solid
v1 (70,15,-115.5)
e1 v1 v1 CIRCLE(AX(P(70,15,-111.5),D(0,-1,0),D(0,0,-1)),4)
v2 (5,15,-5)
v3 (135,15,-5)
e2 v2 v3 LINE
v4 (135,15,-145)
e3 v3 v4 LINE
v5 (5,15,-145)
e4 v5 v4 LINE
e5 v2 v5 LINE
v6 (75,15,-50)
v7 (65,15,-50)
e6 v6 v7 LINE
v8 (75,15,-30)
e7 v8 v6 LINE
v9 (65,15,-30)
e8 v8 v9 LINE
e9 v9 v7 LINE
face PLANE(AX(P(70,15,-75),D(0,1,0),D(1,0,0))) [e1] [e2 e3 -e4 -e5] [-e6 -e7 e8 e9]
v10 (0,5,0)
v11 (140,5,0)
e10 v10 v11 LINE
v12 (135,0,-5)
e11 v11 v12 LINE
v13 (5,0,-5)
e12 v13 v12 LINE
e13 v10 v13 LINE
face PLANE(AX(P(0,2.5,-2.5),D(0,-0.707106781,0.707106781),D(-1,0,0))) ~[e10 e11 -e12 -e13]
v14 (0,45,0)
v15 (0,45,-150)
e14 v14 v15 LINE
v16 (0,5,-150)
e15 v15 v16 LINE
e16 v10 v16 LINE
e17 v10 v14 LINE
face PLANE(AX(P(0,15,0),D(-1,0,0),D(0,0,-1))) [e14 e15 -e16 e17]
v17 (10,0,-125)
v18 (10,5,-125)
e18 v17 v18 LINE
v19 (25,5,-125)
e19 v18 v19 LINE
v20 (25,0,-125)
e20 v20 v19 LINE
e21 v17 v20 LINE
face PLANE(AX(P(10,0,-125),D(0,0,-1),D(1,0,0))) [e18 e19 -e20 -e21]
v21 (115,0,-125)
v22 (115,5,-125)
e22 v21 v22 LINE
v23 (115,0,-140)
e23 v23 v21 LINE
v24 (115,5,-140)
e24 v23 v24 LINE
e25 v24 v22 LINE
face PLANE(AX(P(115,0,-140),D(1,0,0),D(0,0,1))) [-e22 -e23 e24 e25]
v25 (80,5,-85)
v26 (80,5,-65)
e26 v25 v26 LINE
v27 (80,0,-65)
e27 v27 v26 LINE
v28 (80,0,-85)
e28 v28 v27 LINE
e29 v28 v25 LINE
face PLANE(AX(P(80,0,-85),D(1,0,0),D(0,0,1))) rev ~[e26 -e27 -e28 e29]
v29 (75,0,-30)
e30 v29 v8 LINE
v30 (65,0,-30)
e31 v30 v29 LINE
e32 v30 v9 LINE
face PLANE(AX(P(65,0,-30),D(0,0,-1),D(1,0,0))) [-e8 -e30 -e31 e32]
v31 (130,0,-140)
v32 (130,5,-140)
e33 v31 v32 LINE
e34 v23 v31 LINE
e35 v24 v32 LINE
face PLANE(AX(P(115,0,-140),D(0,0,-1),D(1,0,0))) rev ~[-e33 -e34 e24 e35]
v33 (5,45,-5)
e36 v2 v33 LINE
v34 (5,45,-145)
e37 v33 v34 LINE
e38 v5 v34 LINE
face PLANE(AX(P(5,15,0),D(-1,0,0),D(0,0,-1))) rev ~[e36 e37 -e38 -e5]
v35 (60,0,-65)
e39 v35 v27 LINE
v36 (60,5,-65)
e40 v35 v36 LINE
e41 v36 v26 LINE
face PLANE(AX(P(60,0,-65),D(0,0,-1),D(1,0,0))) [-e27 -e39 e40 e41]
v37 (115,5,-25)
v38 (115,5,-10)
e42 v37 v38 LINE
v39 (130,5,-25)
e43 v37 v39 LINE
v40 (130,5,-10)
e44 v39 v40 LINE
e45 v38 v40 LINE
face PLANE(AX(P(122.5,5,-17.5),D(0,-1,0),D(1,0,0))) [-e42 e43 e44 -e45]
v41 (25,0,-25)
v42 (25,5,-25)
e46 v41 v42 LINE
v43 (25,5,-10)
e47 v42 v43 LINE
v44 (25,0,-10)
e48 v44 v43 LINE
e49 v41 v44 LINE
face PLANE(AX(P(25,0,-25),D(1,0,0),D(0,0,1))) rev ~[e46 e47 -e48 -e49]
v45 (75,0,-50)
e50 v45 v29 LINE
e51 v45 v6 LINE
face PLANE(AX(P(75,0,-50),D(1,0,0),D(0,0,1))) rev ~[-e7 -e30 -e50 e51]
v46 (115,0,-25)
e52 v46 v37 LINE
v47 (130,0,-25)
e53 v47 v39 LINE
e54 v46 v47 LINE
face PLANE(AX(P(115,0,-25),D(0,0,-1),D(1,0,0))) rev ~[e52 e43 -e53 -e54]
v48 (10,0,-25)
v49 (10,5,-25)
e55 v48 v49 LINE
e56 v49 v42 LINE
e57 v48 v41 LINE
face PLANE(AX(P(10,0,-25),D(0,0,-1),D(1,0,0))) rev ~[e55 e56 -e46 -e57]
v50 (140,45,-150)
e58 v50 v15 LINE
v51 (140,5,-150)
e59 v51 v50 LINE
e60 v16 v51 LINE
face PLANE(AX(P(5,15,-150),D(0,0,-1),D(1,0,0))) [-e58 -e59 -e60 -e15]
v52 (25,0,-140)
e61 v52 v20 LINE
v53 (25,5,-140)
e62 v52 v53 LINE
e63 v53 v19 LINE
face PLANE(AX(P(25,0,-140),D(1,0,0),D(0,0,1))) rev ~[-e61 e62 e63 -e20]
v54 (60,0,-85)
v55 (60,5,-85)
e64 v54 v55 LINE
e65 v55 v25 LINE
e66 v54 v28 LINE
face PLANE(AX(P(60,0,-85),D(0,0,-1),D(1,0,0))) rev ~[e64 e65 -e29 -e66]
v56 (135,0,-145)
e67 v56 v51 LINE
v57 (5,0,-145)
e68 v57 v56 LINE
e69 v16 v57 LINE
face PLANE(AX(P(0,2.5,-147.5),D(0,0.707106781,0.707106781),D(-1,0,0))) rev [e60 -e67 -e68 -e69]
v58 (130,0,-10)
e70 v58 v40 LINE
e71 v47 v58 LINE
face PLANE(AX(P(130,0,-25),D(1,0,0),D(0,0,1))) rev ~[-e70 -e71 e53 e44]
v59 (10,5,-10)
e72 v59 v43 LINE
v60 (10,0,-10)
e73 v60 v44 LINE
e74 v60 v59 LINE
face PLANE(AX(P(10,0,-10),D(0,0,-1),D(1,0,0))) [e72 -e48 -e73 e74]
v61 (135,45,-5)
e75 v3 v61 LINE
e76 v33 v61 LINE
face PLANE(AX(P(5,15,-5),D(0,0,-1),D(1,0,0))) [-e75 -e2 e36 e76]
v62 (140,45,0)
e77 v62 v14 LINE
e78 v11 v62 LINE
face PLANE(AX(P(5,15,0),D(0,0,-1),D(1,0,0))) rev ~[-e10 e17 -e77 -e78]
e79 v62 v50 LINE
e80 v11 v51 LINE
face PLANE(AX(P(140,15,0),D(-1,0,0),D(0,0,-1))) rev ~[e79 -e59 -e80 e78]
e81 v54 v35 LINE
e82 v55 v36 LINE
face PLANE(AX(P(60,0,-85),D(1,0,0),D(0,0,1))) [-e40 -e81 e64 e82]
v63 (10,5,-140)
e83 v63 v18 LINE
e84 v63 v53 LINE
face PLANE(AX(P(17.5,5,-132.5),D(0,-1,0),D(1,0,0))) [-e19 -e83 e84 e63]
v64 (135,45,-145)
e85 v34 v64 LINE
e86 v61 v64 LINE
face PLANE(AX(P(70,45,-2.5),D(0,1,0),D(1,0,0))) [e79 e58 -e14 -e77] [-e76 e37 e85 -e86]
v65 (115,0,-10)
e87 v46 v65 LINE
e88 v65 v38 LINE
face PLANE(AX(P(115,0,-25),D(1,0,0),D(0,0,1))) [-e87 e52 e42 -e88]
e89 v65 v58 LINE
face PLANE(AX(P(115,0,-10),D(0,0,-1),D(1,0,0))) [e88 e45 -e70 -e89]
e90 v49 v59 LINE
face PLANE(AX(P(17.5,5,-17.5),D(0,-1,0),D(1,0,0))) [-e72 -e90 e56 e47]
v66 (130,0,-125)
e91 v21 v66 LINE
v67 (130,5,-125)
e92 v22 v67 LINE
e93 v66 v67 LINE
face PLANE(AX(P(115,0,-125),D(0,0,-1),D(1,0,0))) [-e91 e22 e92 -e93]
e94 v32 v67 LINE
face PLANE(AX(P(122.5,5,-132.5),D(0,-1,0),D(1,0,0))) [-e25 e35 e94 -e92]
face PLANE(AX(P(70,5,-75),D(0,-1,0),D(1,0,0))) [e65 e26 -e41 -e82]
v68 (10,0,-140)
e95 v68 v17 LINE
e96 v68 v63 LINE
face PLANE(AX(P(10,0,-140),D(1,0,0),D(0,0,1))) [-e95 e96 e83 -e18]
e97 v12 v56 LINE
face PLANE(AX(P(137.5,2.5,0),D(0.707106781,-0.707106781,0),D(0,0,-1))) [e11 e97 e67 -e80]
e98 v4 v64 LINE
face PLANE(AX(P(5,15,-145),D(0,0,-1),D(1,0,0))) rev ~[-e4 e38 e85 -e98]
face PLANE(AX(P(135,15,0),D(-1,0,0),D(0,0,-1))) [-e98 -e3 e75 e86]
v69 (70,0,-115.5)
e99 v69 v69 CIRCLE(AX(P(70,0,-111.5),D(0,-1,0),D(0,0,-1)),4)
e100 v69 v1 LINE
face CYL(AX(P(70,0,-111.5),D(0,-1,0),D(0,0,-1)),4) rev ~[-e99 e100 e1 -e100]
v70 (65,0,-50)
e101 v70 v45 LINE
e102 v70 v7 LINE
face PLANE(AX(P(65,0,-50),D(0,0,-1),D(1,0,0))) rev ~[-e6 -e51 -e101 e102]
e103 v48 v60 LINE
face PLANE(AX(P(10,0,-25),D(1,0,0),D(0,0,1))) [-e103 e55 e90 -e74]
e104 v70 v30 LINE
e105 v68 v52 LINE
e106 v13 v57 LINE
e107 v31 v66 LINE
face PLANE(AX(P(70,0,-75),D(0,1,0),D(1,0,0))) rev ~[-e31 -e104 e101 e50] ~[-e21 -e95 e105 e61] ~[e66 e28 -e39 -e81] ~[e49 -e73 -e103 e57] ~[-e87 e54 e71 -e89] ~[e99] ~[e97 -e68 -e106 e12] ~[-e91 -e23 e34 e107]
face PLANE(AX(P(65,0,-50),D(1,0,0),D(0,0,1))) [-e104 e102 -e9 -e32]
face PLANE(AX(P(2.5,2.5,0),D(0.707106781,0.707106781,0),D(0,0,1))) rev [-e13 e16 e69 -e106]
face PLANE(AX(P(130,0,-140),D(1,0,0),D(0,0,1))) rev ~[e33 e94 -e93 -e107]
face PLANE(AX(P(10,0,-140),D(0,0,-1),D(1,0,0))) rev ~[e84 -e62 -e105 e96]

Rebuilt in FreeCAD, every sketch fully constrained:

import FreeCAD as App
import Part
import Sketcher

V = App.Vector


def edges_at(feature, points):
    """Names of the edges that pass closest to the given points."""
    edges = feature.Shape.Edges
    near = lambda p: min(range(len(edges)), key=lambda i: edges[i].distToShape(Part.Vertex(*p))[0])
    return sorted({f"Edge{near(p) + 1}" for p in points})


def add_polygon(sketch, points):
    """Adds a closed chain of lines whose ends are joined by coincident constraints."""
    first, n = sketch.GeometryCount, len(points)
    for a, b in zip(points, points[1:] + points[:1]):
        sketch.addGeometry(Part.LineSegment(App.Vector(*a, 0), App.Vector(*b, 0)), False)
    for i in range(n):
        sketch.addConstraint(Sketcher.Constraint("Coincident", first + i, 2, first + (i + 1) % n, 1))

doc = App.newDocument("Part")
body = doc.addObject("PartDesign::Body", "Body")

# Sketch on XZ plane
sketch1 = body.newObject("Sketcher::SketchObject", "Sketch")
sketch1.AttachmentSupport = (doc.getObject("XZ_Plane"), [""])
sketch1.MapMode = "FlatFace"
add_polygon(sketch1, [(0, -150), (0, 0), (140, 0), (140, -150)])  # lines 0-3
sketch1.addConstraint(Sketcher.Constraint("Vertical", 0))
sketch1.addConstraint(Sketcher.Constraint("Horizontal", 1))
sketch1.addConstraint(Sketcher.Constraint("Vertical", 2))
sketch1.addConstraint(Sketcher.Constraint("Horizontal", 3))
sketch1.addConstraint(Sketcher.Constraint("Coincident", 0, 2, -1, 1))
sketch1.addConstraint(Sketcher.Constraint("DistanceX", 1, 1, 1, 2, 140.0))
sketch1.addConstraint(Sketcher.Constraint("DistanceY", 0, 1, 0, 2, 150.0))
pad1 = body.newObject("PartDesign::Pad", "Pad")
pad1.Profile = sketch1
pad1.Length = 15
pad1.Reversed = True

# Sketch on XZ plane
sketch2 = body.newObject("Sketcher::SketchObject", "Sketch001")
sketch2.AttachmentSupport = (doc.getObject("XZ_Plane"), [""])
sketch2.MapMode = "FlatFace"
add_polygon(sketch2, [(10, -10), (10, -25), (25, -25), (25, -10)])  # lines 0-3
sketch2.addConstraint(Sketcher.Constraint("Vertical", 0))
sketch2.addConstraint(Sketcher.Constraint("Horizontal", 1))
sketch2.addConstraint(Sketcher.Constraint("Vertical", 2))
sketch2.addConstraint(Sketcher.Constraint("Horizontal", 3))
sketch2.addConstraint(Sketcher.Constraint("Equal", 3, 0))
sketch2.addConstraint(Sketcher.Constraint("DistanceX", 1, 1, 1, 2, 15.0))
sketch2.addConstraint(Sketcher.Constraint("DistanceX", -1, 1, 0, 2, 10.0))
sketch2.addConstraint(Sketcher.Constraint("DistanceY", 0, 2, -1, 1, 25.0))
pocket1 = body.newObject("PartDesign::Pocket", "Pocket")
pocket1.Profile = sketch2
pocket1.Length = 5

# Sketch on XZ plane
sketch3 = body.newObject("Sketcher::SketchObject", "Sketch002")
sketch3.AttachmentSupport = (doc.getObject("XZ_Plane"), [""])
sketch3.MapMode = "FlatFace"
add_polygon(sketch3, [(115, -10), (115, -25), (130, -25), (130, -10)])  # lines 0-3
sketch3.addConstraint(Sketcher.Constraint("Vertical", 0))
sketch3.addConstraint(Sketcher.Constraint("Horizontal", 1))
sketch3.addConstraint(Sketcher.Constraint("Vertical", 2))
sketch3.addConstraint(Sketcher.Constraint("Horizontal", 3))
sketch3.addConstraint(Sketcher.Constraint("Equal", 3, 0))
sketch3.addConstraint(Sketcher.Constraint("DistanceX", 1, 1, 1, 2, 15.0))
sketch3.addConstraint(Sketcher.Constraint("DistanceX", -1, 1, 0, 2, 115.0))
sketch3.addConstraint(Sketcher.Constraint("DistanceY", 0, 2, -1, 1, 25.0))
pocket2 = body.newObject("PartDesign::Pocket", "Pocket001")
pocket2.Profile = sketch3
pocket2.Length = 5

# Sketch on XZ plane
sketch4 = body.newObject("Sketcher::SketchObject", "Sketch003")
sketch4.AttachmentSupport = (doc.getObject("XZ_Plane"), [""])
sketch4.MapMode = "FlatFace"
add_polygon(sketch4, [(10, -125), (10, -140), (25, -140), (25, -125)])  # lines 0-3
sketch4.addConstraint(Sketcher.Constraint("Vertical", 0))
sketch4.addConstraint(Sketcher.Constraint("Horizontal", 1))
sketch4.addConstraint(Sketcher.Constraint("Vertical", 2))
sketch4.addConstraint(Sketcher.Constraint("Horizontal", 3))
sketch4.addConstraint(Sketcher.Constraint("Equal", 3, 0))
sketch4.addConstraint(Sketcher.Constraint("DistanceX", 1, 1, 1, 2, 15.0))
sketch4.addConstraint(Sketcher.Constraint("DistanceX", -1, 1, 0, 2, 10.0))
sketch4.addConstraint(Sketcher.Constraint("DistanceY", 0, 2, -1, 1, 140.0))
pocket3 = body.newObject("PartDesign::Pocket", "Pocket002")
pocket3.Profile = sketch4
pocket3.Length = 5

# Sketch on XZ plane
sketch5 = body.newObject("Sketcher::SketchObject", "Sketch004")
sketch5.AttachmentSupport = (doc.getObject("XZ_Plane"), [""])
sketch5.MapMode = "FlatFace"
add_polygon(sketch5, [(115, -125), (115, -140), (130, -140), (130, -125)])  # lines 0-3
sketch5.addConstraint(Sketcher.Constraint("Vertical", 0))
sketch5.addConstraint(Sketcher.Constraint("Horizontal", 1))
sketch5.addConstraint(Sketcher.Constraint("Vertical", 2))
sketch5.addConstraint(Sketcher.Constraint("Horizontal", 3))
sketch5.addConstraint(Sketcher.Constraint("Equal", 3, 0))
sketch5.addConstraint(Sketcher.Constraint("DistanceX", 1, 1, 1, 2, 15.0))
sketch5.addConstraint(Sketcher.Constraint("DistanceX", -1, 1, 0, 2, 115.0))
sketch5.addConstraint(Sketcher.Constraint("DistanceY", 0, 2, -1, 1, 140.0))
pocket4 = body.newObject("PartDesign::Pocket", "Pocket003")
pocket4.Profile = sketch5
pocket4.Length = 5

# Sketch on XZ plane
sketch6 = body.newObject("Sketcher::SketchObject", "Sketch005")
sketch6.AttachmentSupport = (doc.getObject("XZ_Plane"), [""])
sketch6.MapMode = "FlatFace"
add_polygon(sketch6, [(60, -65), (60, -85), (80, -85), (80, -65)])  # lines 0-3
sketch6.addConstraint(Sketcher.Constraint("Vertical", 0))
sketch6.addConstraint(Sketcher.Constraint("Horizontal", 1))
sketch6.addConstraint(Sketcher.Constraint("Vertical", 2))
sketch6.addConstraint(Sketcher.Constraint("Horizontal", 3))
sketch6.addConstraint(Sketcher.Constraint("Equal", 3, 0))
sketch6.addConstraint(Sketcher.Constraint("DistanceX", 1, 1, 1, 2, 20.0))
sketch6.addConstraint(Sketcher.Constraint("DistanceX", -1, 1, 0, 2, 60.0))
sketch6.addConstraint(Sketcher.Constraint("DistanceY", 0, 2, -1, 1, 85.0))
pocket5 = body.newObject("PartDesign::Pocket", "Pocket004")
pocket5.Profile = sketch6
pocket5.Length = 5

# Sketch on XZ plane
sketch7 = body.newObject("Sketcher::SketchObject", "Sketch006")
sketch7.AttachmentSupport = (doc.getObject("XZ_Plane"), [""])
sketch7.MapMode = "FlatFace"
sketch7.addGeometry(Part.Circle(V(70, -111.5, 0), V(0, 0, 1), 4), False)
sketch7.addConstraint(Sketcher.Constraint("Diameter", 0, 8.0))
sketch7.addConstraint(Sketcher.Constraint("DistanceX", -1, 1, 0, 3, 70.0))
sketch7.addConstraint(Sketcher.Constraint("DistanceY", 0, 3, -1, 1, 111.5))
pocket6 = body.newObject("PartDesign::Pocket", "Pocket005")
pocket6.Profile = sketch7
pocket6.Type = "ThroughAll"

# Sketch on XZ plane
sketch8 = body.newObject("Sketcher::SketchObject", "Sketch007")
sketch8.AttachmentSupport = (doc.getObject("XZ_Plane"), [""])
sketch8.MapMode = "FlatFace"
add_polygon(sketch8, [(65, -30), (65, -50), (75, -50), (75, -30)])  # lines 0-3
sketch8.addConstraint(Sketcher.Constraint("Vertical", 0))
sketch8.addConstraint(Sketcher.Constraint("Horizontal", 1))
sketch8.addConstraint(Sketcher.Constraint("Vertical", 2))
sketch8.addConstraint(Sketcher.Constraint("Horizontal", 3))
sketch8.addConstraint(Sketcher.Constraint("DistanceX", 1, 1, 1, 2, 10.0))
sketch8.addConstraint(Sketcher.Constraint("DistanceY", 0, 2, 0, 1, 20.0))
sketch8.addConstraint(Sketcher.Constraint("DistanceX", -1, 1, 0, 2, 65.0))
sketch8.addConstraint(Sketcher.Constraint("DistanceY", 0, 2, -1, 1, 50.0))
pocket7 = body.newObject("PartDesign::Pocket", "Pocket006")
pocket7.Profile = sketch8
pocket7.Type = "ThroughAll"

# Sketch on XZ plane
sketch9 = body.newObject("Sketcher::SketchObject", "Sketch008")
sketch9.AttachmentSupport = (doc.getObject("XZ_Plane"), [""])
sketch9.MapMode = "FlatFace"
sketch9.AttachmentOffset = App.Placement(V(0, 0, -15), App.Rotation())
add_polygon(sketch9, [(0, -150), (0, 0), (5, 0), (5, -150)])  # lines 0-3
sketch9.addConstraint(Sketcher.Constraint("Vertical", 0))
sketch9.addConstraint(Sketcher.Constraint("Horizontal", 1))
sketch9.addConstraint(Sketcher.Constraint("Vertical", 2))
sketch9.addConstraint(Sketcher.Constraint("Horizontal", 3))
sketch9.addConstraint(Sketcher.Constraint("Coincident", 0, 2, -1, 1))
sketch9.addConstraint(Sketcher.Constraint("DistanceX", 1, 1, 1, 2, 5.0))
sketch9.addConstraint(Sketcher.Constraint("DistanceY", 0, 1, 0, 2, 150.0))
pad2 = body.newObject("PartDesign::Pad", "Pad001")
pad2.Profile = sketch9
pad2.Length = 30
pad2.Reversed = True

# Sketch on XZ plane
sketch10 = body.newObject("Sketcher::SketchObject", "Sketch009")
sketch10.AttachmentSupport = (doc.getObject("XZ_Plane"), [""])
sketch10.MapMode = "FlatFace"
sketch10.AttachmentOffset = App.Placement(V(0, 0, -15), App.Rotation())
add_polygon(sketch10, [(5, -150), (5, -145), (140, -145), (140, -150)])  # lines 0-3
sketch10.addConstraint(Sketcher.Constraint("Vertical", 0))
sketch10.addConstraint(Sketcher.Constraint("Horizontal", 1))
sketch10.addConstraint(Sketcher.Constraint("Vertical", 2))
sketch10.addConstraint(Sketcher.Constraint("Horizontal", 3))
sketch10.addConstraint(Sketcher.Constraint("DistanceX", 1, 1, 1, 2, 135.0))
sketch10.addConstraint(Sketcher.Constraint("DistanceY", 0, 1, 0, 2, 5.0))
sketch10.addConstraint(Sketcher.Constraint("DistanceX", -1, 1, 0, 2, 5.0))
sketch10.addConstraint(Sketcher.Constraint("DistanceY", 0, 2, -1, 1, 145.0))
pad3 = body.newObject("PartDesign::Pad", "Pad002")
pad3.Profile = sketch10
pad3.Length = 30
pad3.Reversed = True

# Sketch on XZ plane
sketch11 = body.newObject("Sketcher::SketchObject", "Sketch010")
sketch11.AttachmentSupport = (doc.getObject("XZ_Plane"), [""])
sketch11.MapMode = "FlatFace"
sketch11.AttachmentOffset = App.Placement(V(0, 0, -15), App.Rotation())
add_polygon(sketch11, [(135, -145), (135, 0), (140, 0), (140, -145)])  # lines 0-3
sketch11.addConstraint(Sketcher.Constraint("Vertical", 0))
sketch11.addConstraint(Sketcher.Constraint("Horizontal", 1))
sketch11.addConstraint(Sketcher.Constraint("Vertical", 2))
sketch11.addConstraint(Sketcher.Constraint("Horizontal", 3))
sketch11.addConstraint(Sketcher.Constraint("PointOnObject", 0, 2, -1))
sketch11.addConstraint(Sketcher.Constraint("DistanceX", 1, 1, 1, 2, 5.0))
sketch11.addConstraint(Sketcher.Constraint("DistanceY", 0, 1, 0, 2, 145.0))
sketch11.addConstraint(Sketcher.Constraint("DistanceX", -1, 1, 0, 2, 135.0))
pad4 = body.newObject("PartDesign::Pad", "Pad003")
pad4.Profile = sketch11
pad4.Length = 30
pad4.Reversed = True

# Sketch on XZ plane
sketch12 = body.newObject("Sketcher::SketchObject", "Sketch011")
sketch12.AttachmentSupport = (doc.getObject("XZ_Plane"), [""])
sketch12.MapMode = "FlatFace"
sketch12.AttachmentOffset = App.Placement(V(0, 0, -15), App.Rotation())
add_polygon(sketch12, [(5, -5), (5, 0), (135, 0), (135, -5)])  # lines 0-3
sketch12.addConstraint(Sketcher.Constraint("Vertical", 0))
sketch12.addConstraint(Sketcher.Constraint("Horizontal", 1))
sketch12.addConstraint(Sketcher.Constraint("Vertical", 2))
sketch12.addConstraint(Sketcher.Constraint("Horizontal", 3))
sketch12.addConstraint(Sketcher.Constraint("PointOnObject", 0, 2, -1))
sketch12.addConstraint(Sketcher.Constraint("DistanceX", 1, 1, 1, 2, 130.0))
sketch12.addConstraint(Sketcher.Constraint("DistanceY", 0, 1, 0, 2, 5.0))
sketch12.addConstraint(Sketcher.Constraint("DistanceX", -1, 1, 0, 2, 5.0))
pad5 = body.newObject("PartDesign::Pad", "Pad004")
pad5.Profile = sketch12
pad5.Length = 30
pad5.Reversed = True
doc.recompute()

chamfer = body.newObject("PartDesign::Chamfer", "Chamfer")
chamfer.Base = (pad5, edges_at(pad5, [
    (70, 0, 0),
    (140, 0, -75),
    (70, 0, -150),
    (0, 0, -75),
]))
chamfer.Size = 5

doc.recompute()
